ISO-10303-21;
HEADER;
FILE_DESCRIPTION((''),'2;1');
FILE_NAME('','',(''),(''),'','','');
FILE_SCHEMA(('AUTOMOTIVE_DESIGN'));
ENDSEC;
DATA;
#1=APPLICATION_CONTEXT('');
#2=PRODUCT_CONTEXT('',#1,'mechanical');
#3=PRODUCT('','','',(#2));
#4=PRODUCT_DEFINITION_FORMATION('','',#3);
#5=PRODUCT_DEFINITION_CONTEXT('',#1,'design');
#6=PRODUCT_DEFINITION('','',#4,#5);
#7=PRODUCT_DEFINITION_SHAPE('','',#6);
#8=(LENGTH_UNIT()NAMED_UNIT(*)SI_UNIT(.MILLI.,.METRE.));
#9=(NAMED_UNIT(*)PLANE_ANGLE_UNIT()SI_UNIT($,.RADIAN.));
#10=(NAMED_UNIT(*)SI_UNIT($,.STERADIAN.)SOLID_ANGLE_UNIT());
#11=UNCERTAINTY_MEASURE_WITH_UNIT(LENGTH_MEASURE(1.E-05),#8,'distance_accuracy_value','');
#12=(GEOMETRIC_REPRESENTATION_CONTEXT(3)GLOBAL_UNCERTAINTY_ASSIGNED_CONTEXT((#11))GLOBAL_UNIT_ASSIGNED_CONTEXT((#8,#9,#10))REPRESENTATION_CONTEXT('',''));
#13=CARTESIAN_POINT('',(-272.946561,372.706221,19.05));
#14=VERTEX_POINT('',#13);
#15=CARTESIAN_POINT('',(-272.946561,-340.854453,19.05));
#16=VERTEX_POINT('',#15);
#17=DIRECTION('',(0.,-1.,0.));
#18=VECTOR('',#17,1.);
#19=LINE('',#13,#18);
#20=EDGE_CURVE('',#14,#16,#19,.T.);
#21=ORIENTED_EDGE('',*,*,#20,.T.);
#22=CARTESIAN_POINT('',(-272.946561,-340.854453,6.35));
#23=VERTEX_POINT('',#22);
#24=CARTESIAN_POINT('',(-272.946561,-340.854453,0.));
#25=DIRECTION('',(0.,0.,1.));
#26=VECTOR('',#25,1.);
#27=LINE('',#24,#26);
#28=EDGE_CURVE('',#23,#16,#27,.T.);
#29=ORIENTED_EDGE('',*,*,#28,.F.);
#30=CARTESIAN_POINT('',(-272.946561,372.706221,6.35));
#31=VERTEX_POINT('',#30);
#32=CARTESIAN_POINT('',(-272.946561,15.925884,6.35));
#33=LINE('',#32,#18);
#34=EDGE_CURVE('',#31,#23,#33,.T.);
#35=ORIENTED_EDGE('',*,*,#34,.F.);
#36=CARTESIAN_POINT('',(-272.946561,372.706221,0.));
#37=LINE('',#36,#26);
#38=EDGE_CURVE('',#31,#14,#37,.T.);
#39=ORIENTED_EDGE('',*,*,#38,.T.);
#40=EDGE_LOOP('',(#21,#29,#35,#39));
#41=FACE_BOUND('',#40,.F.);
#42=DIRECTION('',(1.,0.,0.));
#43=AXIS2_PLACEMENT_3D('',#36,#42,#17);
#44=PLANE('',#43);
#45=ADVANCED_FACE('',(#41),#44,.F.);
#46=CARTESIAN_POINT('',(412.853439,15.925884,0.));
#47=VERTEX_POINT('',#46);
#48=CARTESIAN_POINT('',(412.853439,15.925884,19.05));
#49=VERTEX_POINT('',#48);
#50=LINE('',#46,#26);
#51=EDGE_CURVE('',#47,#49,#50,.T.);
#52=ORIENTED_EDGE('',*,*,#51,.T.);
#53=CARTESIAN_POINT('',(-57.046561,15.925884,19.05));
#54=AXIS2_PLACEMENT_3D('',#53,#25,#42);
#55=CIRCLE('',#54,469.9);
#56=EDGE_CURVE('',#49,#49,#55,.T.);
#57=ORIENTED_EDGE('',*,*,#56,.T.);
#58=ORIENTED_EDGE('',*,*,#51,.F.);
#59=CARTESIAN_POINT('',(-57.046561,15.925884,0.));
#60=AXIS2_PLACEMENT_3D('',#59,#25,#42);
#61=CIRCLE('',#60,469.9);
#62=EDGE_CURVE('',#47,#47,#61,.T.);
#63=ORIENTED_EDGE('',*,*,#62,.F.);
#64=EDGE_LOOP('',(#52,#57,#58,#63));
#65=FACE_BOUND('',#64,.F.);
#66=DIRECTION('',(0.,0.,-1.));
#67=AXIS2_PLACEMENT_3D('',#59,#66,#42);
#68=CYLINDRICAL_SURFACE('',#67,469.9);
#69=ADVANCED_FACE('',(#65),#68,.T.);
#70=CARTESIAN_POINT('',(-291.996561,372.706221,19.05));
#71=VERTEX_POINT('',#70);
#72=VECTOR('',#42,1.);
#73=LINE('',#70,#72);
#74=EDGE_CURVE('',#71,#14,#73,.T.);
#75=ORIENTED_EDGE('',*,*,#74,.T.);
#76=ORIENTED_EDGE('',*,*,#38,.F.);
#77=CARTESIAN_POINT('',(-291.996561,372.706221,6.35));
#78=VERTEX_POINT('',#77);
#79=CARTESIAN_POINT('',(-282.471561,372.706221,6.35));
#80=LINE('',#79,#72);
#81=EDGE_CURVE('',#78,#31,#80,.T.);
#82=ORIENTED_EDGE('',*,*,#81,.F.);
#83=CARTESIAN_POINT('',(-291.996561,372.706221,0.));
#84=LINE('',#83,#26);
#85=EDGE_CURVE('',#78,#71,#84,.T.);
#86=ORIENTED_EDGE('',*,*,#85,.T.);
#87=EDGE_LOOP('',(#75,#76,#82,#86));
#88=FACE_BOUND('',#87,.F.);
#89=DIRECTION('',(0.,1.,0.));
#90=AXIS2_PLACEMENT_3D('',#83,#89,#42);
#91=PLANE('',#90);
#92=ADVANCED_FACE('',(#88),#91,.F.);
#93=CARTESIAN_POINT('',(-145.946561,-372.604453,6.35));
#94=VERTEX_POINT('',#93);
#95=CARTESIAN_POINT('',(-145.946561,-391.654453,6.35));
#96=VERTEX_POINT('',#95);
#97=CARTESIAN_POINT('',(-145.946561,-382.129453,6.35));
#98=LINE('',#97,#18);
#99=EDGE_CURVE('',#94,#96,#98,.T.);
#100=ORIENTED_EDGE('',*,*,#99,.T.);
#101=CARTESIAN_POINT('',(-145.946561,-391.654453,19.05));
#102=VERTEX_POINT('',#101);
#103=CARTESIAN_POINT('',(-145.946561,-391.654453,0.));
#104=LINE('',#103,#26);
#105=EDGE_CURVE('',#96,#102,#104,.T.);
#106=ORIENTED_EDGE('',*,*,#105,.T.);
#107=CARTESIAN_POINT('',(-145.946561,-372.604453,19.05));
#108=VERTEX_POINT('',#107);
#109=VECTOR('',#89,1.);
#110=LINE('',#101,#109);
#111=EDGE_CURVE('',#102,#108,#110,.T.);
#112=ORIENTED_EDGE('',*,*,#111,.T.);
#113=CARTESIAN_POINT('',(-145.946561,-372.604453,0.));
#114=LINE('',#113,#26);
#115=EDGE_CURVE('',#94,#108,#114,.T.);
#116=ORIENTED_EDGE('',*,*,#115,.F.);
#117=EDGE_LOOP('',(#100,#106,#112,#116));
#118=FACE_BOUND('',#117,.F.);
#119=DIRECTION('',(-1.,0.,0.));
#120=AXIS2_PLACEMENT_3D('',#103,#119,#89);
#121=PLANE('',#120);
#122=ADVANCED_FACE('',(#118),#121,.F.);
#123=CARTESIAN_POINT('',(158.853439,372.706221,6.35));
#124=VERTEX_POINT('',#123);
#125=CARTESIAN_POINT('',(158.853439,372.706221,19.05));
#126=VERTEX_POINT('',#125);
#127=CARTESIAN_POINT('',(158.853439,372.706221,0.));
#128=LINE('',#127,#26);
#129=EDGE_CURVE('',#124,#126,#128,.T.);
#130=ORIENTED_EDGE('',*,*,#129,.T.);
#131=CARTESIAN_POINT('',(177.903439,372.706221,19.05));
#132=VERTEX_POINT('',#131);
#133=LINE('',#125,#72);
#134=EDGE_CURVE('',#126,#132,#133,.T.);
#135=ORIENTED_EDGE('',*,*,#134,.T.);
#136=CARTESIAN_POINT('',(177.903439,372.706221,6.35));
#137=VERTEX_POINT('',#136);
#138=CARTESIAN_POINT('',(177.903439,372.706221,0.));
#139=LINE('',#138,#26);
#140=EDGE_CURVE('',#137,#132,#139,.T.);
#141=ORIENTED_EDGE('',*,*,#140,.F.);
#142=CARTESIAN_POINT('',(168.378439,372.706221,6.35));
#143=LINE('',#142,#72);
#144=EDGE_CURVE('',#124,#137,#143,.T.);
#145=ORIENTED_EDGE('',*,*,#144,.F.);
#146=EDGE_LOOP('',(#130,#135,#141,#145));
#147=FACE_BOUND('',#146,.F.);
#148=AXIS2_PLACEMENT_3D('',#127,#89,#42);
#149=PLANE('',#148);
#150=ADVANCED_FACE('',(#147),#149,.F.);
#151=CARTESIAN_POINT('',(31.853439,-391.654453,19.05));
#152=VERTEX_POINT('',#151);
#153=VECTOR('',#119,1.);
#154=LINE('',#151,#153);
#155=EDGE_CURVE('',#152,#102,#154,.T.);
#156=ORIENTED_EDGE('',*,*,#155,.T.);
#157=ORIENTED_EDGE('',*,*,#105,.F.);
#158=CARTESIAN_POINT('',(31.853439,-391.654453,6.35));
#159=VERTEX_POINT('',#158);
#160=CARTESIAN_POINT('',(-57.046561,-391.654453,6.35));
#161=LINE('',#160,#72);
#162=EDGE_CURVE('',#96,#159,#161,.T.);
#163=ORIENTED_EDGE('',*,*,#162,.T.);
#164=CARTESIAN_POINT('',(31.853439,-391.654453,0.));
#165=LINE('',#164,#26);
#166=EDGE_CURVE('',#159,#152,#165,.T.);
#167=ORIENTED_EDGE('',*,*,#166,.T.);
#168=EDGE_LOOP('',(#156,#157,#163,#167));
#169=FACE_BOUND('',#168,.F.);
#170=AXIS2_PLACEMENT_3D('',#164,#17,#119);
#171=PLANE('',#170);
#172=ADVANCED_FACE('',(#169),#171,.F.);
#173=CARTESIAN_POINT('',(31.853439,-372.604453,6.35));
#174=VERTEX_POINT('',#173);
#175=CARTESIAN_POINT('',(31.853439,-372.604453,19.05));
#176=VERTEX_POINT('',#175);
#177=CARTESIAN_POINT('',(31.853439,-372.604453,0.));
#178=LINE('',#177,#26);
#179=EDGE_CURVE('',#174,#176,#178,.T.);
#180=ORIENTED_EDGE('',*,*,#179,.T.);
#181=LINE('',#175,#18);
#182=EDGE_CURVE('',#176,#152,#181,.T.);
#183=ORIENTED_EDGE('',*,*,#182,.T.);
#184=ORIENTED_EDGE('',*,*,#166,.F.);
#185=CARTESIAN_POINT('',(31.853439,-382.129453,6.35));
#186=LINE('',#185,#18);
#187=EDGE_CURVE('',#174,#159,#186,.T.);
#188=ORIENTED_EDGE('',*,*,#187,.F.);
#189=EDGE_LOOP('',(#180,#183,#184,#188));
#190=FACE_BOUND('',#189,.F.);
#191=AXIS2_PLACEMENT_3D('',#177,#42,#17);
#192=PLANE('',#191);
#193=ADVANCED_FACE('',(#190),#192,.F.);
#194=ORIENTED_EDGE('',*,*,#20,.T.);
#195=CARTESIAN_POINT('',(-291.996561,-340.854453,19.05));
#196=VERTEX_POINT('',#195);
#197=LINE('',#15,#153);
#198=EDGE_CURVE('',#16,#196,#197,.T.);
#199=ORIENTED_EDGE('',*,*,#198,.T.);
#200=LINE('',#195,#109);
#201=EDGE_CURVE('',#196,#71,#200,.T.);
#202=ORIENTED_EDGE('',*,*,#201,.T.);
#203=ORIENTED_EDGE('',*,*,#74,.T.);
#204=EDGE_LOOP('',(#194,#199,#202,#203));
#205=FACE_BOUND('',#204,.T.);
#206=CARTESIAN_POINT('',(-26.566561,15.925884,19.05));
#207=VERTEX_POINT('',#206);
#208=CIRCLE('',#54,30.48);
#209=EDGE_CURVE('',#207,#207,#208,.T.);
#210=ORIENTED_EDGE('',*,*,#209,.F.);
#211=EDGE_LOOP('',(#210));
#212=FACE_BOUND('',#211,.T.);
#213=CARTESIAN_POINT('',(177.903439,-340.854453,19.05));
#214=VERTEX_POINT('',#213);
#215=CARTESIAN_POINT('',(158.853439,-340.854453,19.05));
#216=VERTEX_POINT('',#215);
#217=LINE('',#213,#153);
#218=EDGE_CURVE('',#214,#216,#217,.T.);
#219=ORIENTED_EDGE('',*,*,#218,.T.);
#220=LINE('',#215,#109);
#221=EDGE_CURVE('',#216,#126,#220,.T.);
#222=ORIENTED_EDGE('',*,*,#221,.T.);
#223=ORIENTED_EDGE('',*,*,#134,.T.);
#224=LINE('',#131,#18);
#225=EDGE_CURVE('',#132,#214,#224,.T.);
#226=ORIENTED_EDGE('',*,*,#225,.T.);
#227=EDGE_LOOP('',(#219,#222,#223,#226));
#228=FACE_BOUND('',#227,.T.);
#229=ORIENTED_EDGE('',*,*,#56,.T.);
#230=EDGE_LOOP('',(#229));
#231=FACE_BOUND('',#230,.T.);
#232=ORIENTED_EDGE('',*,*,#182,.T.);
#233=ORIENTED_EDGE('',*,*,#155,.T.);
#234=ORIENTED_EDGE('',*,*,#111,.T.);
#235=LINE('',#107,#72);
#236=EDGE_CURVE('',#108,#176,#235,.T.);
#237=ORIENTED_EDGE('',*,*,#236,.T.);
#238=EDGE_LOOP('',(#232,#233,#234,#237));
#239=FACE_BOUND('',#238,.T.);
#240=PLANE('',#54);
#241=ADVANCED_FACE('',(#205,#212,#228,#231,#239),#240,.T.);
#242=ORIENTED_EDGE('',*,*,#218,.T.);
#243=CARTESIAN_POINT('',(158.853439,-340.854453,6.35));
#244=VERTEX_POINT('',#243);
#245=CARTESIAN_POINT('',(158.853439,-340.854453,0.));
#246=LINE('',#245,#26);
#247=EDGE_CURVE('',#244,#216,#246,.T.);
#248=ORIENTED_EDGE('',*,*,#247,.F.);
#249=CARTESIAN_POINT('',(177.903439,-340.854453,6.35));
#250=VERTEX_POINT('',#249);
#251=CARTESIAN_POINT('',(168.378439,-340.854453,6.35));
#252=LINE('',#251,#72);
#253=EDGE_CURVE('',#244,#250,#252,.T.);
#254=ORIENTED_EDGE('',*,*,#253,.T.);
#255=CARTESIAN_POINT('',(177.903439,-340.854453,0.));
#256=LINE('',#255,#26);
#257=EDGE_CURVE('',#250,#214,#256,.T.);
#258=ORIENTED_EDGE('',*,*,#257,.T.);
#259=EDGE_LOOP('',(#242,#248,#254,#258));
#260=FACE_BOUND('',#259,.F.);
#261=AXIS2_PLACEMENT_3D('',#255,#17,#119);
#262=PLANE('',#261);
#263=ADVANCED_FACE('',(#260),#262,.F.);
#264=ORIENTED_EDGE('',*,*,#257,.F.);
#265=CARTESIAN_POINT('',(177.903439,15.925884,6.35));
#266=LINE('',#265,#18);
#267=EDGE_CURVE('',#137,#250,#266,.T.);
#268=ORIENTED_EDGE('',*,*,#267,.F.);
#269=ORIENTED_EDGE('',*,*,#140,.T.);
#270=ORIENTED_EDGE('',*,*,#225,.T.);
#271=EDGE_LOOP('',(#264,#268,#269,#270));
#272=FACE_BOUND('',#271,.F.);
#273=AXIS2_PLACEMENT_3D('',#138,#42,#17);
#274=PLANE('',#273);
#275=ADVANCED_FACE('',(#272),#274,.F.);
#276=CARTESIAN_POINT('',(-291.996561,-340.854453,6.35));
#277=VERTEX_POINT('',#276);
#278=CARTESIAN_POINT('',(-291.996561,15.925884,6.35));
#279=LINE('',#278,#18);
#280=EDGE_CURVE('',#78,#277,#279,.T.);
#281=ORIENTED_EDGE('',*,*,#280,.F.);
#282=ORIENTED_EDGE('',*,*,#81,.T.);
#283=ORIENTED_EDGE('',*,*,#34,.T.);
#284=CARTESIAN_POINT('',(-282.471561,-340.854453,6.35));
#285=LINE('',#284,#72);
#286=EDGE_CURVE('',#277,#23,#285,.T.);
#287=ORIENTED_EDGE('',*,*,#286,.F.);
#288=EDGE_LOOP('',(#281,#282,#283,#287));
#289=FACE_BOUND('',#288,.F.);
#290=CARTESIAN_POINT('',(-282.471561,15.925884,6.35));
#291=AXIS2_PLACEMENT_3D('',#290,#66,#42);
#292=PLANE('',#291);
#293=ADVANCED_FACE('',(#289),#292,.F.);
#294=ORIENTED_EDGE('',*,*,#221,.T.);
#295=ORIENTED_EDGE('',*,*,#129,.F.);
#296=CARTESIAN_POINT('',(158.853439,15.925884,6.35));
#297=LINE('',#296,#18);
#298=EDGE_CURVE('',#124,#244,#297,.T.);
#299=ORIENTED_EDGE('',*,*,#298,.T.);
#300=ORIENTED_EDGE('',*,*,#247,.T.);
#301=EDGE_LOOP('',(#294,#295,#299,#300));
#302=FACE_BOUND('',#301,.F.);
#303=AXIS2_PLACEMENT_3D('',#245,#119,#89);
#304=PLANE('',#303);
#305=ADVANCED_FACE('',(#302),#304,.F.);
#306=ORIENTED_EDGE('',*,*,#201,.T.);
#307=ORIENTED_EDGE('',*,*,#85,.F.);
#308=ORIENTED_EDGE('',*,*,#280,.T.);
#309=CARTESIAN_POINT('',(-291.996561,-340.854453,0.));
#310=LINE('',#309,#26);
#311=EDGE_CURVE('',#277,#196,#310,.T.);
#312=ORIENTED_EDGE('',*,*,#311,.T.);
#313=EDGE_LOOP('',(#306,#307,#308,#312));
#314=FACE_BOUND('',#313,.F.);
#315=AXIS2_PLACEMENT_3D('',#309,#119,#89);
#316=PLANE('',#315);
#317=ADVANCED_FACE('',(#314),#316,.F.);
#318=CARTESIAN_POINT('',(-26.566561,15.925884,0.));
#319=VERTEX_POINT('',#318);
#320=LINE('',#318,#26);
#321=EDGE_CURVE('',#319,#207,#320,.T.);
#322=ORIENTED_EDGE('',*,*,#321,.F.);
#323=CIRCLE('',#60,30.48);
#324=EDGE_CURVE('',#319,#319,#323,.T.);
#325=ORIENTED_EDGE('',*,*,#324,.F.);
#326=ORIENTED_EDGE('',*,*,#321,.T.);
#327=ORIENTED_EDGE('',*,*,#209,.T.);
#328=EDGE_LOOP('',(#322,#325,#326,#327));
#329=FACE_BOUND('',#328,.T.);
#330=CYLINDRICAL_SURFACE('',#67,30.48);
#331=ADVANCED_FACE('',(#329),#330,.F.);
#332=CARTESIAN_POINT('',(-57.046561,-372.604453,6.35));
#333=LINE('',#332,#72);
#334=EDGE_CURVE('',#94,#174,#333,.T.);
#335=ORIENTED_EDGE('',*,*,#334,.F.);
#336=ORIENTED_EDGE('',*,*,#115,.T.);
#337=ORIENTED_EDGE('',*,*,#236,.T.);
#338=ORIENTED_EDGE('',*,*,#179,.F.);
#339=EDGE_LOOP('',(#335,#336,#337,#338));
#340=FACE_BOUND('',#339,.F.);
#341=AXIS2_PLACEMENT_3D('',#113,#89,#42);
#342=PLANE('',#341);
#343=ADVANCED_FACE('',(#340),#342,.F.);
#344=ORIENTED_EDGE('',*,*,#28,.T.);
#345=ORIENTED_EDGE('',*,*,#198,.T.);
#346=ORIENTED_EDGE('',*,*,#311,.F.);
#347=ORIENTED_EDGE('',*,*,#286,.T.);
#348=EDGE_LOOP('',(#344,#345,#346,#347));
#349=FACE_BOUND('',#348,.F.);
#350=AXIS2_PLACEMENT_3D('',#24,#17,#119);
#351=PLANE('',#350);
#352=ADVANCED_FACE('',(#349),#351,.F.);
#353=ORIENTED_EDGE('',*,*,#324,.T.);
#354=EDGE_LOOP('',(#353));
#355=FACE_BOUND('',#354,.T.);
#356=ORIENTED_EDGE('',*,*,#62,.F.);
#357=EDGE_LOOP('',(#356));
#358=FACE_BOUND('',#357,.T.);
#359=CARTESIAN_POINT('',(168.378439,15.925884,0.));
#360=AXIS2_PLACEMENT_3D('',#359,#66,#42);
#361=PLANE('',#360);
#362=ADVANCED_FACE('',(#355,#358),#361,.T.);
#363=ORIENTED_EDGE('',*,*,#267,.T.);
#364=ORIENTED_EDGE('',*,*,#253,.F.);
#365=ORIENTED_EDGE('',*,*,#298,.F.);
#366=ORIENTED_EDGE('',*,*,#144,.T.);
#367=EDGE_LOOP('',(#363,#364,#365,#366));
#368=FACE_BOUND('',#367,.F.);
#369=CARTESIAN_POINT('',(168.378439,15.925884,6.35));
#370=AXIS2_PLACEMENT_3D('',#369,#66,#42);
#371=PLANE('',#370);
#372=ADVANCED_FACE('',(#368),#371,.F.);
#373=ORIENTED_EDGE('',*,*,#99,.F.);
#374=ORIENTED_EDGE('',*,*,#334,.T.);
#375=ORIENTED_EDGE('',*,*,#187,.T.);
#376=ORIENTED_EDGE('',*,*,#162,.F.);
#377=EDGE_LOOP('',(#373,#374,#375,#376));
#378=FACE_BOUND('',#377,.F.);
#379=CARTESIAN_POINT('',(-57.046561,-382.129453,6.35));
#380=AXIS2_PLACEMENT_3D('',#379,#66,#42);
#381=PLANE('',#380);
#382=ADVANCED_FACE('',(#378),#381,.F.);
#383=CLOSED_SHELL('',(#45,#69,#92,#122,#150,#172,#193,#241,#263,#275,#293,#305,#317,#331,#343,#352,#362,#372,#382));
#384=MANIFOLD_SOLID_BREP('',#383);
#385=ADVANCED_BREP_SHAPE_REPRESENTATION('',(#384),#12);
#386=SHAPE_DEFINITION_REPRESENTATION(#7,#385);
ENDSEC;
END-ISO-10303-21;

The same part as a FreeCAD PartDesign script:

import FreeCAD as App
import Part
import Sketcher

V = App.Vector
Q = App.Units.Quantity


def add_polygon(sketch, points):
    """Adds a closed chain of lines whose ends are joined by coincident constraints."""
    first, n = sketch.GeometryCount, len(points)
    for a, b in zip(points, points[1:] + points[:1]):
        sketch.addGeometry(Part.LineSegment(App.Vector(*a, 0), App.Vector(*b, 0)), False)
    for i in range(n):
        sketch.addConstraint(Sketcher.Constraint("Coincident", first + i, 2, first + (i + 1) % n, 1))

doc = App.newDocument("Part")
body = doc.addObject("PartDesign::Body", "Body")

# Sketch on XY plane
sketch1 = body.newObject("Sketcher::SketchObject", "Sketch")
sketch1.AttachmentSupport = (doc.getObject("XY_Plane"), [""])
sketch1.MapMode = "FlatFace"
sketch1.addGeometry(Part.Circle(V(-57, 16, 0), V(0, 0, 1), 470), False)  # 0
add_polygon(sketch1, [(-146, -392), (-146, -373), (32, -373), (32, -392)])  # lines 1-4
add_polygon(sketch1, [(-292, -341), (-292, 373), (-273, 373), (-273, -341)])  # lines 5-8
sketch1.addGeometry(Part.Circle(V(-57, 16, 0), V(0, 0, 1), 30), False)  # 9
add_polygon(sketch1, [(178, 373), (178, -341), (159, -341), (159, 373)])  # lines 10-13
sketch1.addConstraint([
    Sketcher.Constraint("Vertical", 1),
    Sketcher.Constraint("Horizontal", 2),
    Sketcher.Constraint("Vertical", 3),
    Sketcher.Constraint("Horizontal", 4),
    Sketcher.Constraint("Vertical", 5),
    Sketcher.Constraint("Horizontal", 6),
    Sketcher.Constraint("Vertical", 7),
    Sketcher.Constraint("Horizontal", 8),
    Sketcher.Constraint("Vertical", 10),
    Sketcher.Constraint("Horizontal", 11),
    Sketcher.Constraint("Vertical", 12),
    Sketcher.Constraint("Horizontal", 13),
    Sketcher.Constraint("Coincident", 9, 3, 0, 3),
    Sketcher.Constraint("Horizontal", 8, 2, 10, 2),
    Sketcher.Constraint("Horizontal", 6, 2, 12, 2),
    Sketcher.Constraint("Equal", 8, 11),
    Sketcher.Constraint("Equal", 13, 1),
    Sketcher.Constraint("Diameter", 0, Q("37 in")),
    Sketcher.Constraint("Diameter", 9, Q("2.4 in")),
    Sketcher.Constraint("DistanceX", 2, 1, 2, 2, Q("7 in")),
    Sketcher.Constraint("DistanceX", 6, 2, 1, 2, Q("5 in")),
    Sketcher.Constraint("DistanceY", 4, 2, 7, 2, Q("2 in")),
    Sketcher.Constraint("DistanceX", 2, 2, 11, 2, Q("5 in")),
    Sketcher.Constraint("DistanceX", 6, 1, 6, 2, Q("0.75 in")),
    Sketcher.Constraint("DistanceX", 1, 2, 0, 3, Q("3.5 in")),
    Sketcher.Constraint("DistanceY", 5, 1, 5, 2, 713.560674),
    Sketcher.Constraint("DistanceX", 0, 3, -1, 1, 57.046561),
    Sketcher.Constraint("DistanceY", -1, 1, 5, 2, 372.706221),
    Sketcher.Constraint("DistanceY", -1, 1, 0, 3, 15.925884),
])
pad1 = body.newObject("PartDesign::Pad", "Pad")
pad1.Profile = sketch1
pad1.Length = Q("0.75 in")

# Sketch on XY plane
sketch2 = body.newObject("Sketcher::SketchObject", "Sketch001")
sketch2.AttachmentSupport = (doc.getObject("XY_Plane"), [""])
sketch2.MapMode = "FlatFace"
add_polygon(sketch2, [(159, -341), (159, 373), (178, 373), (178, -341)])  # lines 0-3
add_polygon(sketch2, [(-292, -341), (-292, 373), (-273, 373), (-273, -341)])  # lines 4-7
add_polygon(sketch2, [(-146, -392), (-146, -373), (32, -373), (32, -392)])  # lines 8-11
sketch2.addConstraint([
    Sketcher.Constraint("Vertical", 0),
    Sketcher.Constraint("Horizontal", 1),
    Sketcher.Constraint("Vertical", 2),
    Sketcher.Constraint("Horizontal", 3),
    Sketcher.Constraint("Vertical", 4),
    Sketcher.Constraint("Horizontal", 5),
    Sketcher.Constraint("Vertical", 6),
    Sketcher.Constraint("Horizontal", 7),
    Sketcher.Constraint("Vertical", 8),
    Sketcher.Constraint("Horizontal", 9),
    Sketcher.Constraint("Vertical", 10),
    Sketcher.Constraint("Horizontal", 11),
    Sketcher.Constraint("Horizontal", 1, 2, 4, 2),
    Sketcher.Constraint("Horizontal", 3, 2, 6, 2),
    Sketcher.Constraint("Equal", 3, 5),
    Sketcher.Constraint("Equal", 7, 8),
    Sketcher.Constraint("DistanceX", 9, 1, 9, 2, Q("7 in")),
    Sketcher.Constraint("DistanceX", 5, 2, 0, 2, Q("17 in")),
    Sketcher.Constraint("DistanceX", 6, 2, 8, 2, Q("5 in")),
    Sketcher.Constraint("DistanceY", 10, 2, 3, 2, Q("2 in")),
    Sketcher.Constraint("DistanceX", 1, 1, 1, 2, Q("0.75 in")),
    Sketcher.Constraint("DistanceY", 0, 1, 0, 2, 713.560674),
    Sketcher.Constraint("DistanceX", -1, 1, 0, 2, 158.853439),
    Sketcher.Constraint("DistanceY", -1, 1, 0, 2, 372.706221),
])
pad2 = body.newObject("PartDesign::Pad", "Pad001")
pad2.Profile = sketch2
pad2.Length = Q("0.25 in")

doc.recompute()
